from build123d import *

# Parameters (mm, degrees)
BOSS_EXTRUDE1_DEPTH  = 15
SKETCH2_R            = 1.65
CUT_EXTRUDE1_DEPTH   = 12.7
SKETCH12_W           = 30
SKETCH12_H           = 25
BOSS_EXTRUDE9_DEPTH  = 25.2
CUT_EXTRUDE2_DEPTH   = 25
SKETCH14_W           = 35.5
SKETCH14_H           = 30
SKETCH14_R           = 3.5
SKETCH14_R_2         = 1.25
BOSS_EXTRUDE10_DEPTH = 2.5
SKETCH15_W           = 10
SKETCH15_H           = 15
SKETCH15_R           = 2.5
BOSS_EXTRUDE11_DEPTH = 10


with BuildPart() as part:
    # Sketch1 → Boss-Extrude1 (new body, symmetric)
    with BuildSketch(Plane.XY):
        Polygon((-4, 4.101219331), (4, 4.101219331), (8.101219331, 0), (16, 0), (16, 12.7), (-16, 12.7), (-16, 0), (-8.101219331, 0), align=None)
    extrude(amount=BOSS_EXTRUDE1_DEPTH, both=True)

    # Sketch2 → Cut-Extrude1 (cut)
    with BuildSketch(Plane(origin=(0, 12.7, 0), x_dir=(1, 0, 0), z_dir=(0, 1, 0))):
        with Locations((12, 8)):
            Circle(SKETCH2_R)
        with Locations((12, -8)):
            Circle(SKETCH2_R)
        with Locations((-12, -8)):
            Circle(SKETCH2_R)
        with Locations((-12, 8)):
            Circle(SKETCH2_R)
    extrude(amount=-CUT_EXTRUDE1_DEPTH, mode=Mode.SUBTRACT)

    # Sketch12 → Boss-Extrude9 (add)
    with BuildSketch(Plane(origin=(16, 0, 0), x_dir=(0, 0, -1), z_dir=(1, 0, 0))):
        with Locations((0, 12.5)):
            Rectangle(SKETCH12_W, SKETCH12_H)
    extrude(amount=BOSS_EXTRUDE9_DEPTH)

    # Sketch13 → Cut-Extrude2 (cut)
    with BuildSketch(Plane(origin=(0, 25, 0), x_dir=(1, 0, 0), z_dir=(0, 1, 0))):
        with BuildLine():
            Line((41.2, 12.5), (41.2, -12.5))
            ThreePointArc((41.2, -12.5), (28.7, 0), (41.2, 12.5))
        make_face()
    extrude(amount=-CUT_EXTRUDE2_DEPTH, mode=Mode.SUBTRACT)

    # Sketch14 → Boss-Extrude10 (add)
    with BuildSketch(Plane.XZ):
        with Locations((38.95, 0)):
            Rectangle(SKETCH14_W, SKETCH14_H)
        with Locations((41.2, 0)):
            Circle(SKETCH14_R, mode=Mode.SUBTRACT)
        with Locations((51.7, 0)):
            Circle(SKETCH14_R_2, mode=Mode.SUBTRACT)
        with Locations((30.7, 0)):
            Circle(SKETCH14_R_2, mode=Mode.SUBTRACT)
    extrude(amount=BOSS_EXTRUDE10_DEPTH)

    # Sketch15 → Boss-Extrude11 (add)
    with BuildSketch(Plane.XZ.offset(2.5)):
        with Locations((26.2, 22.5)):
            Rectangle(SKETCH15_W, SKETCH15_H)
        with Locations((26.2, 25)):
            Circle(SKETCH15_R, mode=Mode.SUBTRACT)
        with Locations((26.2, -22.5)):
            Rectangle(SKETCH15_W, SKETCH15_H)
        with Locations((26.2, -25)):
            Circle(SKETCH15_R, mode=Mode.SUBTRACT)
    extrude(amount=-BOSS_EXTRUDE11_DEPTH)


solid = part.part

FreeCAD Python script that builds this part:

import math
import FreeCAD as App
import Part
import Sketcher
from FreeCAD import Vector

doc = App.newDocument("Part")
body = doc.addObject("PartDesign::Body", "Body")

sketch1 = body.newObject("Sketcher::SketchObject", "Sketch")
sketch1.AttachmentSupport = (doc.getObject("XY_Plane"), [""])
sketch1.MapMode = "FlatFace"
sketch1.addGeometry(Part.LineSegment(Vector(-4, 4, 0), Vector(4, 4, 0)), False)
sketch1.addGeometry(Part.LineSegment(Vector(4, 4, 0), Vector(8, 0, 0)), False)
sketch1.addGeometry(Part.LineSegment(Vector(8, 0, 0), Vector(16, 0, 0)), False)
sketch1.addGeometry(Part.LineSegment(Vector(16, 0, 0), Vector(16, 13, 0)), False)
sketch1.addGeometry(Part.LineSegment(Vector(16, 13, 0), Vector(-16, 13, 0)), False)
sketch1.addGeometry(Part.LineSegment(Vector(-16, 13, 0), Vector(-16, 0, 0)), False)
sketch1.addGeometry(Part.LineSegment(Vector(-16, 0, 0), Vector(-8, 0, 0)), False)
sketch1.addGeometry(Part.LineSegment(Vector(-8, 0, 0), Vector(-4, 4, 0)), False)
sketch1.addConstraint(Sketcher.Constraint("Coincident", 0, 2, 1, 1))
sketch1.addConstraint(Sketcher.Constraint("Coincident", 1, 2, 2, 1))
sketch1.addConstraint(Sketcher.Constraint("Coincident", 2, 2, 3, 1))
sketch1.addConstraint(Sketcher.Constraint("Coincident", 3, 2, 4, 1))
sketch1.addConstraint(Sketcher.Constraint("Coincident", 4, 2, 5, 1))
sketch1.addConstraint(Sketcher.Constraint("Coincident", 5, 2, 6, 1))
sketch1.addConstraint(Sketcher.Constraint("Coincident", 6, 2, 7, 1))
sketch1.addConstraint(Sketcher.Constraint("Coincident", 7, 2, 0, 1))
sketch1.addConstraint(Sketcher.Constraint("Horizontal", 0))
sketch1.addConstraint(Sketcher.Constraint("Horizontal", 2))
sketch1.addConstraint(Sketcher.Constraint("Vertical", 3))
sketch1.addConstraint(Sketcher.Constraint("Horizontal", 4))
sketch1.addConstraint(Sketcher.Constraint("Vertical", 5))
sketch1.addConstraint(Sketcher.Constraint("Horizontal", 6))
sketch1.addConstraint(Sketcher.Constraint("Symmetric", 2, 2, 5, 2, -1, 1))
sketch1.addConstraint(Sketcher.Constraint("Symmetric", 1, 2, 6, 2, -2))
sketch1.addConstraint(Sketcher.Constraint("Perpendicular", 1, 7))
sketch1.addConstraint(Sketcher.Constraint("Equal", 1, 7))
sketch1.addConstraint(Sketcher.Constraint("DistanceX", 0, 1, 0, 2, 8.0))
sketch1.addConstraint(Sketcher.Constraint("DistanceX", 4, 2, 4, 1, 32.0))
sketch1.addConstraint(Sketcher.Constraint("DistanceY", 3, 1, 3, 2, 12.7))
sketch1.addConstraint(Sketcher.Constraint("Distance", 1, 5.8))
pad1 = body.newObject("PartDesign::Pad", "Pad")
pad1.Profile = sketch1
pad1.Length = 30
pad1.Midplane = True

sketch2 = body.newObject("Sketcher::SketchObject", "Sketch001")
sketch2.AttachmentSupport = (doc.getObject("XZ_Plane"), [""])
sketch2.MapMode = "FlatFace"
sketch2.AttachmentOffset = App.Placement(Vector(0, 0, -12.7), App.Rotation())
sketch2.addGeometry(Part.Circle(Vector(12, -8, 0), Vector(0, 0, 1), 1.6), False)
sketch2.addGeometry(Part.Circle(Vector(12, 8, 0), Vector(0, 0, 1), 1.6), False)
sketch2.addGeometry(Part.Circle(Vector(-12, 8, 0), Vector(0, 0, 1), 1.6), False)
sketch2.addGeometry(Part.Circle(Vector(-12, -8, 0), Vector(0, 0, 1), 1.6), False)
sketch2.addConstraint(Sketcher.Constraint("Equal", 0, 1))
sketch2.addConstraint(Sketcher.Constraint("Equal", 1, 2))
sketch2.addConstraint(Sketcher.Constraint("Equal", 2, 3))
sketch2.addConstraint(Sketcher.Constraint("Symmetric", 0, 3, 2, 3, -1, 1))
sketch2.addConstraint(Sketcher.Constraint("Symmetric", 1, 3, 3, 3, -1, 1))
sketch2.addConstraint(Sketcher.Constraint("Symmetric", 1, 3, 2, 3, -2))
sketch2.addConstraint(Sketcher.Constraint("Diameter", 0, 3.3))
sketch2.addConstraint(Sketcher.Constraint("DistanceX", -1, 1, 0, 3, 12.0))
sketch2.addConstraint(Sketcher.Constraint("DistanceY", 0, 3, -1, 1, 8.0))
pocket1 = body.newObject("PartDesign::Pocket", "Pocket")
pocket1.Profile = sketch2
pocket1.Length = 12.7
pocket1.Reversed = True

sketch3 = body.newObject("Sketcher::SketchObject", "Sketch002")
sketch3.AttachmentSupport = (doc.getObject("YZ_Plane"), [""])
sketch3.MapMode = "FlatFace"
sketch3.AttachmentOffset = App.Placement(Vector(0, 0, 16), App.Rotation())
sketch3.addGeometry(Part.LineSegment(Vector(25, 15, 0), Vector(0, 15, 0)), False)
sketch3.addGeometry(Part.LineSegment(Vector(0, 15, 0), Vector(0, -15, 0)), False)
sketch3.addGeometry(Part.LineSegment(Vector(0, -15, 0), Vector(25, -15, 0)), False)
sketch3.addGeometry(Part.LineSegment(Vector(25, -15, 0), Vector(25, 15, 0)), False)
sketch3.addConstraint(Sketcher.Constraint("Coincident", 0, 2, 1, 1))
sketch3.addConstraint(Sketcher.Constraint("Coincident", 1, 2, 2, 1))
sketch3.addConstraint(Sketcher.Constraint("Coincident", 2, 2, 3, 1))
sketch3.addConstraint(Sketcher.Constraint("Coincident", 3, 2, 0, 1))
sketch3.addConstraint(Sketcher.Constraint("Horizontal", 0))
sketch3.addConstraint(Sketcher.Constraint("Vertical", 1))
sketch3.addConstraint(Sketcher.Constraint("Horizontal", 2))
sketch3.addConstraint(Sketcher.Constraint("Vertical", 3))
sketch3.addConstraint(Sketcher.Constraint("Symmetric", 0, 2, 1, 2, -1, 1))
sketch3.addConstraint(Sketcher.Constraint("DistanceX", 0, 2, 0, 1, 25.0))
sketch3.addConstraint(Sketcher.Constraint("DistanceY", 1, 2, 1, 1, 30.0))
pad2 = body.newObject("PartDesign::Pad", "Pad001")
pad2.Profile = sketch3
pad2.Length = 25.2

sketch4 = body.newObject("Sketcher::SketchObject", "Sketch003")
sketch4.AttachmentSupport = (doc.getObject("XZ_Plane"), [""])
sketch4.MapMode = "FlatFace"
sketch4.AttachmentOffset = App.Placement(Vector(0, 0, -25), App.Rotation())
sketch4.addGeometry(Part.LineSegment(Vector(41, 12, 0), Vector(41, -12, 0)), False)
sketch4.addGeometry(Part.ArcOfCircle(Part.Circle(Vector(41, 0, 0), Vector(0, 0, 1), 12), math.radians(90), math.radians(270)), False)
sketch4.addConstraint(Sketcher.Constraint("Coincident", 0, 1, 1, 1))
sketch4.addConstraint(Sketcher.Constraint("Coincident", 1, 2, 0, 2))
sketch4.addConstraint(Sketcher.Constraint("Vertical", 0))
sketch4.addConstraint(Sketcher.Constraint("PointOnObject", 1, 3, -1))
sketch4.addConstraint(Sketcher.Constraint("Vertical", 1, 3, 0, 1))
sketch4.addConstraint(Sketcher.Constraint("Radius", 1, 12.5))
sketch4.addConstraint(Sketcher.Constraint("DistanceX", -1, 1, 1, 3, 41.2))
pocket2 = body.newObject("PartDesign::Pocket", "Pocket001")
pocket2.Profile = sketch4
pocket2.Length = 25
pocket2.Reversed = True

sketch5 = body.newObject("Sketcher::SketchObject", "Sketch004")
sketch5.AttachmentSupport = (doc.getObject("XZ_Plane"), [""])
sketch5.MapMode = "FlatFace"
sketch5.addGeometry(Part.LineSegment(Vector(21.2, 15, 0), Vector(21.2, -15, 0)), False)
sketch5.addGeometry(Part.LineSegment(Vector(21.2, -15, 0), Vector(56.7, -15, 0)), False)
sketch5.addGeometry(Part.LineSegment(Vector(56.7, -15, 0), Vector(56.7, 15, 0)), False)
sketch5.addGeometry(Part.LineSegment(Vector(56.7, 15, 0), Vector(21.2, 15, 0)), False)
sketch5.addGeometry(Part.Circle(Vector(30.7, 0, 0), Vector(0, 0, 1), 1.2), False)
sketch5.addGeometry(Part.Circle(Vector(41.2, 0, 0), Vector(0, 0, 1), 3.5), False)
sketch5.addGeometry(Part.Circle(Vector(51.7, 0, 0), Vector(0, 0, 1), 1.2), False)
sketch5.addConstraint(Sketcher.Constraint("Coincident", 0, 2, 1, 1))
sketch5.addConstraint(Sketcher.Constraint("Coincident", 1, 2, 2, 1))
sketch5.addConstraint(Sketcher.Constraint("Coincident", 2, 2, 3, 1))
sketch5.addConstraint(Sketcher.Constraint("Coincident", 3, 2, 0, 1))
sketch5.addConstraint(Sketcher.Constraint("Vertical", 0))
sketch5.addConstraint(Sketcher.Constraint("Horizontal", 1))
sketch5.addConstraint(Sketcher.Constraint("Vertical", 2))
sketch5.addConstraint(Sketcher.Constraint("Horizontal", 3))
sketch5.addConstraint(Sketcher.Constraint("Equal", 4, 6))
sketch5.addConstraint(Sketcher.Constraint("PointOnObject", 4, 3, -1))
sketch5.addConstraint(Sketcher.Constraint("PointOnObject", 5, 3, -1))
sketch5.addConstraint(Sketcher.Constraint("PointOnObject", 6, 3, -1))
sketch5.addConstraint(Sketcher.Constraint("Diameter", 5, 7.0))
sketch5.addConstraint(Sketcher.Constraint("Diameter", 4, 2.5))
sketch5.addConstraint(Sketcher.Constraint("DistanceY", 0, 2, 0, 1, 30.0))
sketch5.addConstraint(Sketcher.Constraint("DistanceX", 1, 1, 1, 2, 35.5))
sketch5.addConstraint(Sketcher.Constraint("DistanceY", 0, 2, -1, 1, 15.0))
sketch5.addConstraint(Sketcher.Constraint("DistanceX", 4, 3, 6, 3, 21.0))
sketch5.addConstraint(Sketcher.Constraint("DistanceX", 0, 2, 5, 3, 20.0))
sketch5.addConstraint(Sketcher.Constraint("DistanceX", 6, 3, 1, 2, 5.0))
sketch5.addConstraint(Sketcher.Constraint("DistanceX", -1, 1, 4, 3, 30.7))
pad3 = body.newObject("PartDesign::Pad", "Pad002")
pad3.Profile = sketch5
pad3.Length = 2.5

sketch6 = body.newObject("Sketcher::SketchObject", "Sketch005")
sketch6.AttachmentSupport = (doc.getObject("XZ_Plane"), [""])
sketch6.MapMode = "FlatFace"
sketch6.AttachmentOffset = App.Placement(Vector(0, 0, 2.5), App.Rotation())
sketch6.addGeometry(Part.LineSegment(Vector(21.2, 30, 0), Vector(21.2, 15, 0)), False)
sketch6.addGeometry(Part.LineSegment(Vector(21.2, 15, 0), Vector(31.2, 15, 0)), False)
sketch6.addGeometry(Part.LineSegment(Vector(31.2, 15, 0), Vector(31.2, 30, 0)), False)
sketch6.addGeometry(Part.LineSegment(Vector(31.2, 30, 0), Vector(21.2, 30, 0)), False)
sketch6.addGeometry(Part.Circle(Vector(26.2, 25, 0), Vector(0, 0, 1), 2.5), False)
sketch6.addGeometry(Part.LineSegment(Vector(21.2, -15, 0), Vector(21.2, -30, 0)), False)
sketch6.addGeometry(Part.LineSegment(Vector(21.2, -30, 0), Vector(31.2, -30, 0)), False)
sketch6.addGeometry(Part.LineSegment(Vector(31.2, -30, 0), Vector(31.2, -15, 0)), False)
sketch6.addGeometry(Part.LineSegment(Vector(31.2, -15, 0), Vector(21.2, -15, 0)), False)
sketch6.addGeometry(Part.Circle(Vector(26.2, -25, 0), Vector(0, 0, 1), 2.5), False)
sketch6.addConstraint(Sketcher.Constraint("Coincident", 0, 2, 1, 1))
sketch6.addConstraint(Sketcher.Constraint("Coincident", 1, 2, 2, 1))
sketch6.addConstraint(Sketcher.Constraint("Coincident", 2, 2, 3, 1))
sketch6.addConstraint(Sketcher.Constraint("Coincident", 3, 2, 0, 1))
sketch6.addConstraint(Sketcher.Constraint("Coincident", 5, 2, 6, 1))
sketch6.addConstraint(Sketcher.Constraint("Coincident", 6, 2, 7, 1))
sketch6.addConstraint(Sketcher.Constraint("Coincident", 7, 2, 8, 1))
sketch6.addConstraint(Sketcher.Constraint("Coincident", 8, 2, 5, 1))
sketch6.addConstraint(Sketcher.Constraint("Vertical", 0))
sketch6.addConstraint(Sketcher.Constraint("Horizontal", 1))
sketch6.addConstraint(Sketcher.Constraint("Vertical", 2))
sketch6.addConstraint(Sketcher.Constraint("Horizontal", 3))
sketch6.addConstraint(Sketcher.Constraint("Vertical", 5))
sketch6.addConstraint(Sketcher.Constraint("Horizontal", 6))
sketch6.addConstraint(Sketcher.Constraint("Vertical", 7))
sketch6.addConstraint(Sketcher.Constraint("Horizontal", 8))
sketch6.addConstraint(Sketcher.Constraint("Equal", 4, 9))
sketch6.addConstraint(Sketcher.Constraint("Symmetric", 4, 3, 9, 3, -1))
sketch6.addConstraint(Sketcher.Constraint("Symmetric", 3, 2, 5, 2, -1))
sketch6.addConstraint(Sketcher.Constraint("Symmetric", 1, 2, 7, 2, -1))
sketch6.addConstraint(Sketcher.Constraint("Diameter", 4, 5.0))
sketch6.addConstraint(Sketcher.Constraint("DistanceX", 1, 1, 1, 2, 10.0))
sketch6.addConstraint(Sketcher.Constraint("DistanceY", 0, 2, 0, 1, 15.0))
sketch6.addConstraint(Sketcher.Constraint("DistanceY", -1, 1, 4, 3, 25.0))
sketch6.addConstraint(Sketcher.Constraint("DistanceY", -1, 1, 0, 2, 15.0))
sketch6.addConstraint(Sketcher.Constraint("DistanceX", 0, 2, 4, 3, 5.0))
sketch6.addConstraint(Sketcher.Constraint("DistanceX", -1, 1, 4, 3, 26.2))
pad4 = body.newObject("PartDesign::Pad", "Pad003")
pad4.Profile = sketch6
pad4.Length = 10
pad4.Reversed = True

doc.recompute()
